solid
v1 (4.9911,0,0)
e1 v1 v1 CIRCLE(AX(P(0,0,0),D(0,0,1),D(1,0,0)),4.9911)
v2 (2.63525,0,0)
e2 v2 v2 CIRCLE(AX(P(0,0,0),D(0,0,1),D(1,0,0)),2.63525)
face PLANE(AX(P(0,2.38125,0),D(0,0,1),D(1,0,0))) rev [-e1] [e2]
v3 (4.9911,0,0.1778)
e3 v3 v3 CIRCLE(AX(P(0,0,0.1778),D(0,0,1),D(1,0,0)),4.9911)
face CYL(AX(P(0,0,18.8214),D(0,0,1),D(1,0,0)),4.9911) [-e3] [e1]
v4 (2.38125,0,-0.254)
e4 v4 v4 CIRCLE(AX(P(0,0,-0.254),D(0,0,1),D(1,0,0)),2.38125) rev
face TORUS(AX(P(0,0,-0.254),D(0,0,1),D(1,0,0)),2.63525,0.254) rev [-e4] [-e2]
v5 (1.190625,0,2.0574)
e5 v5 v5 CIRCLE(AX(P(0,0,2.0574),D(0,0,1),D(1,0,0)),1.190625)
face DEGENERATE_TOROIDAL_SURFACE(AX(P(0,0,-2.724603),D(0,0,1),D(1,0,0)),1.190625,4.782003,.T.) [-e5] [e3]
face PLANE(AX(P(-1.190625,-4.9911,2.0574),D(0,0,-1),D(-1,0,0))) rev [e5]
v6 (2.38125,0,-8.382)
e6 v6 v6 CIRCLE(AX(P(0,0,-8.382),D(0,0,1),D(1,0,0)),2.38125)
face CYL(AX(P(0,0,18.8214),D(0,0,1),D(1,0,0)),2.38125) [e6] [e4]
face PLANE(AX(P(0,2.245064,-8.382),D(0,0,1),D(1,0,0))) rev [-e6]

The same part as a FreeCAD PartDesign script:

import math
import FreeCAD as App
import Part
import Sketcher

V = App.Vector
Q = App.Units.Quantity


def edges_at(feature, points):
    """Names of the edges that pass closest to the given points."""
    edges = feature.Shape.Edges
    near = lambda p: min(range(len(edges)), key=lambda i: edges[i].distToShape(Part.Vertex(*p))[0])
    return sorted({f"Edge{near(p) + 1}" for p in points})

doc = App.newDocument("Part")
body = doc.addObject("PartDesign::Body", "Body")

sketch1 = body.newObject("Sketcher::SketchObject", "Sketch")
sketch1.AttachmentSupport = (doc.getObject("YZ_Plane"), [""])
sketch1.MapMode = "FlatFace"
sketch1.addGeometry([
    Part.LineSegment(V(1.19, 18.82, 0), V(0, 18.82, 0)),
    Part.LineSegment(V(0, 18.82, 0), V(0, -8.38, 0)),
    Part.LineSegment(V(0, -8.38, 0), V(2.38, -8.38, 0)),
    Part.LineSegment(V(2.38, -8.38, 0), V(2.38, 0, 0)),
    Part.LineSegment(V(2.38, 0, 0), V(4.99, 0, 0)),
    Part.LineSegment(V(4.99, 0, 0), V(4.99, 0.18, 0)),
    Part.ArcOfCircle(Part.Circle(V(1.19, -2.72, 0), V(0, 0, 1), 4.78), math.radians(37), math.radians(90)),
    Part.LineSegment(V(1.19, 2.06, 0), V(1.19, 18.82, 0)),
], False)
sketch1.addConstraint([
    Sketcher.Constraint("Coincident", 0, 2, 1, 1),
    Sketcher.Constraint("Coincident", 1, 2, 2, 1),
    Sketcher.Constraint("Coincident", 2, 2, 3, 1),
    Sketcher.Constraint("Coincident", 3, 2, 4, 1),
    Sketcher.Constraint("Coincident", 4, 2, 5, 1),
    Sketcher.Constraint("Coincident", 5, 2, 6, 1),
    Sketcher.Constraint("Coincident", 6, 2, 7, 1),
    Sketcher.Constraint("Coincident", 7, 2, 0, 1),
    Sketcher.Constraint("Horizontal", 0),
    Sketcher.Constraint("Vertical", 1),
    Sketcher.Constraint("Horizontal", 2),
    Sketcher.Constraint("Vertical", 3),
    Sketcher.Constraint("Horizontal", 4),
    Sketcher.Constraint("Vertical", 5),
    Sketcher.Constraint("Vertical", 7),
    Sketcher.Constraint("PointOnObject", 0, 2, -2),
    Sketcher.Constraint("PointOnObject", 3, 2, -1),
    Sketcher.Constraint("DistanceY", 3, 1, 3, 2, Q("0.33 in")),
    Sketcher.Constraint("DistanceY", 7, 1, 7, 2, Q("0.66 in")),
    Sketcher.Constraint("DistanceX", 0, 2, 0, 1, Q("0.046875 in")),
    Sketcher.Constraint("DistanceX", 2, 1, 2, 2, Q("0.09375 in")),
    Sketcher.Constraint("DistanceY", 1, 2, 1, 1, Q("1.071 in")),
    Sketcher.Constraint("DistanceY", 5, 1, 5, 2, Q("0.007 in")),
    Sketcher.Constraint("DistanceX", -1, 1, 6, 3, Q("0.046875 in")),
    Sketcher.Constraint("DistanceX", -1, 1, 4, 2, Q("0.1965 in")),
])
revolution = body.newObject("PartDesign::Revolution", "Revolution")
revolution.Profile = sketch1
revolution.ReferenceAxis = (sketch1, ["V_Axis"])
revolution.Angle = 360

sketch2 = body.newObject("Sketcher::SketchObject", "Sketch001")
sketch2.AttachmentSupport = (doc.getObject("XZ_Plane"), [""])
sketch2.MapMode = "FlatFace"
sketch2.addGeometry([
    Part.LineSegment(V(1.4, 17, 0), V(0, 18.8, 0)),
    Part.LineSegment(V(0, 18.8, 0), V(-1.4, 17, 0)),
    Part.LineSegment(V(-1.4, 17, 0), V(-1.4, 19.3, 0)),
    Part.LineSegment(V(-1.4, 19.3, 0), V(1.4, 19.3, 0)),
    Part.LineSegment(V(1.4, 19.3, 0), V(1.4, 17, 0)),
], False)
sketch2.addConstraint([
    Sketcher.Constraint("Coincident", 0, 2, 1, 1),
    Sketcher.Constraint("Coincident", 1, 2, 2, 1),
    Sketcher.Constraint("Coincident", 2, 2, 3, 1),
    Sketcher.Constraint("Coincident", 3, 2, 4, 1),
    Sketcher.Constraint("Coincident", 4, 2, 0, 1),
    Sketcher.Constraint("Vertical", 2),
    Sketcher.Constraint("Horizontal", 3),
    Sketcher.Constraint("Vertical", 4),
    Sketcher.Constraint("Symmetric", 1, 2, 4, 2, -2),
    Sketcher.Constraint("PointOnObject", 0, 2, -2),
    Sketcher.Constraint("Angle", 0, Q("127.5 deg")),
    Sketcher.Constraint("DistanceY", 0, 2, 2, 2, Q("0.02 in")),
    Sketcher.Constraint("DistanceY", -1, 1, 0, 2, Q("0.741 in")),
    Sketcher.Constraint("DistanceX", 3, 1, 3, 2, Q("2.78765 mm")),
])
pocket1 = body.newObject("PartDesign::Pocket", "Pocket")
pocket1.Profile = sketch2
pocket1.Type = "ThroughAll"
pocket1.Midplane = True

sketch3 = body.newObject("Sketcher::SketchObject", "Sketch002")
sketch3.AttachmentSupport = (doc.getObject("YZ_Plane"), [""])
sketch3.MapMode = "FlatFace"
sketch3.addGeometry([
    Part.LineSegment(V(0, 18.8, 0), V(1.5, 17.3, 0)),
    Part.LineSegment(V(1.5, 17.3, 0), V(1.5, 19.1, 0)),
    Part.LineSegment(V(1.5, 19.1, 0), V(-1.5, 19.1, 0)),
    Part.LineSegment(V(-1.5, 19.1, 0), V(-1.5, 17.3, 0)),
    Part.LineSegment(V(-1.5, 17.3, 0), V(0, 18.8, 0)),
], False)
sketch3.addConstraint([
    Sketcher.Constraint("Coincident", 0, 2, 1, 1),
    Sketcher.Constraint("Coincident", 1, 2, 2, 1),
    Sketcher.Constraint("Coincident", 2, 2, 3, 1),
    Sketcher.Constraint("Coincident", 3, 2, 4, 1),
    Sketcher.Constraint("Coincident", 4, 2, 0, 1),
    Sketcher.Constraint("Vertical", 1),
    Sketcher.Constraint("Horizontal", 2),
    Sketcher.Constraint("Vertical", 3),
    Sketcher.Constraint("Symmetric", 0, 2, 3, 2, -2),
    Sketcher.Constraint("PointOnObject", 4, 2, -2),
    Sketcher.Constraint("DistanceY", -1, 1, 4, 2, Q("0.741 in")),
    Sketcher.Constraint("DistanceY", -1, 1, 1, 2, Q("0.7535 in")),
    Sketcher.Constraint("DistanceX", 2, 2, 2, 1, Q("3.01625 mm")),
    Sketcher.Constraint("Distance", 0, Q("2.163808 mm")),
])
pocket2 = body.newObject("PartDesign::Pocket", "Pocket001")
pocket2.Profile = sketch3
pocket2.Type = "ThroughAll"
pocket2.Midplane = True
doc.recompute()

fillet = body.newObject("PartDesign::Fillet", "Fillet")
fillet.Base = (pocket2, edges_at(pocket2, [(-2.381, 0, 0)]))
fillet.Radius = Q("0.01 in")

sketch4 = body.newObject("Sketcher::SketchObject", "Sketch003")
sketch4.AttachmentSupport = (doc.getObject("XZ_Plane"), [""])
sketch4.MapMode = "FlatFace"
sketch4.addGeometry([
    Part.LineSegment(V(-1.2, 2.1, 0), V(-1.2, 19.8, 0)),
    Part.LineSegment(V(-1.2, 19.8, 0), V(1.2, 19.8, 0)),
    Part.LineSegment(V(1.2, 19.8, 0), V(1.2, 2.1, 0)),
    Part.LineSegment(V(1.2, 2.1, 0), V(-1.2, 2.1, 0)),
], False)
sketch4.addConstraint([
    Sketcher.Constraint("Coincident", 0, 2, 1, 1),
    Sketcher.Constraint("Coincident", 1, 2, 2, 1),
    Sketcher.Constraint("Coincident", 2, 2, 3, 1),
    Sketcher.Constraint("Coincident", 3, 2, 0, 1),
    Sketcher.Constraint("Vertical", 0),
    Sketcher.Constraint("Horizontal", 1),
    Sketcher.Constraint("Vertical", 2),
    Sketcher.Constraint("Horizontal", 3),
    Sketcher.Constraint("DistanceX", 1, 1, 1, 2, Q("0.09375 in")),
    Sketcher.Constraint("DistanceX", 0, 2, -1, 1, Q("0.046875 in")),
    Sketcher.Constraint("DistanceY", -1, 1, 2, 2, Q("0.081 in")),
    Sketcher.Constraint("DistanceY", 0, 1, 0, 2, Q("17.740226 mm")),
])
pocket3 = body.newObject("PartDesign::Pocket", "Pocket002")
pocket3.Profile = sketch4
pocket3.Type = "ThroughAll"
pocket3.Midplane = True

doc.recompute()
